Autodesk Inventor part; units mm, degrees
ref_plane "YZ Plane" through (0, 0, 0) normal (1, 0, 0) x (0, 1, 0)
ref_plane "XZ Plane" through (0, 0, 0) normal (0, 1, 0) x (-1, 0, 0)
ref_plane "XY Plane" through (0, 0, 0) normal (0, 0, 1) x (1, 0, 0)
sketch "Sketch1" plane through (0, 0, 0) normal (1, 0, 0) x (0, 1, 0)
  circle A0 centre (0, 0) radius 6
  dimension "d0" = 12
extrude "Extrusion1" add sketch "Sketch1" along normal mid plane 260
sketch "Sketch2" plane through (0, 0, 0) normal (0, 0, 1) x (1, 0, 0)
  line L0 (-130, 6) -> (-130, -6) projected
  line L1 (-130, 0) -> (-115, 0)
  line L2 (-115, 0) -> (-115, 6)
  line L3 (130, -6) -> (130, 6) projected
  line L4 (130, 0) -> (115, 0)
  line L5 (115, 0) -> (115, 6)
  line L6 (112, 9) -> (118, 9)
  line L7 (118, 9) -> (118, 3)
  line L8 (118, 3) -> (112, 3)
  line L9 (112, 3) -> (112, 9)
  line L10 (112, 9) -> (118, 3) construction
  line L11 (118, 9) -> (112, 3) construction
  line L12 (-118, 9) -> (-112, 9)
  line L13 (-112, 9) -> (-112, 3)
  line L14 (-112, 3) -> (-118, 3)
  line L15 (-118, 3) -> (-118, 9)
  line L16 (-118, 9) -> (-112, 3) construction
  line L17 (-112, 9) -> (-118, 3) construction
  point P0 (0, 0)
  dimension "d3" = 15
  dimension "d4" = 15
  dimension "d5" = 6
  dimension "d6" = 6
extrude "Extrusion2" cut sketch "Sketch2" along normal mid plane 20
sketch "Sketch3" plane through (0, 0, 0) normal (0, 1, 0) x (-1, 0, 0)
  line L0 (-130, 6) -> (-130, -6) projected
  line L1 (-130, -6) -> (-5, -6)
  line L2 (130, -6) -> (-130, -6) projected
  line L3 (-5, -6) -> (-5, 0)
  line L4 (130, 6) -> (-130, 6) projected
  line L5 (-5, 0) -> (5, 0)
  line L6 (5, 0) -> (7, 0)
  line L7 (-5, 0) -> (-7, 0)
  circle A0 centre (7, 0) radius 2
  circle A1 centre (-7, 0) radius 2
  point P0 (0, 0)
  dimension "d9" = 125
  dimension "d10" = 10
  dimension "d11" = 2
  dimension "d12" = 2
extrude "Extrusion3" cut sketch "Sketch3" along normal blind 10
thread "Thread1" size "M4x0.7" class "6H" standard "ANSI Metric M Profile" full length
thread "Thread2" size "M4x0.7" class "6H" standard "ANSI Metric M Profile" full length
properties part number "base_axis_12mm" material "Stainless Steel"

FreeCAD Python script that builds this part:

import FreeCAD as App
import Part
import Sketcher

doc = App.newDocument("Part")
params = doc.addObject("Spreadsheet::Sheet", "Params")
for row, (alias, value) in enumerate([
    ("sketch1_diameter", "12 mm"),
    ("pad1_length", "260 mm"),
    ("sketch2_width", "6 mm"),
    ("pocket1_length", "20 mm"),
    ("sketch3_diameter", "4 mm"),
    ("pocket2_length", "10 mm"),
], start=1):
    params.set(f"A{row}", alias)
    params.set(f"B{row}", "=" + value)
    params.setAlias(f"B{row}", alias)

body = doc.addObject("PartDesign::Body", "Body")

sketch1 = doc.addObject("Sketcher::SketchObject", "Sketch")
body.addObject(sketch1)
sketch1.AttachmentSupport = (doc.YZ_Plane, [""])
sketch1.MapMode = "FlatFace"
sketch1.addGeometry(Part.Circle(App.Vector(0, 0, 0), App.Vector(0, 0, 1), 6), False)
sketch1.addConstraint([
    Sketcher.Constraint("Coincident", 0, 3, -1, 1),
    Sketcher.Constraint("Diameter", 0, 12.0),
])
sketch1.setExpression("Constraints[1]", "Params.sketch1_diameter")
pad1 = doc.addObject("PartDesign::Pad", "Pad")
body.addObject(pad1)
pad1.Profile = sketch1
pad1.setExpression("Length", "Params.pad1_length")
pad1.Midplane = True

sketch2 = doc.addObject("Sketcher::SketchObject", "Sketch001")
body.addObject(sketch2)
sketch2.AttachmentSupport = (doc.XY_Plane, [""])
sketch2.MapMode = "FlatFace"
sketch2.addGeometry([
    Part.LineSegment(App.Vector(118, 9, 0), App.Vector(112, 9, 0)),
    Part.LineSegment(App.Vector(112, 9, 0), App.Vector(112, 3, 0)),
    Part.LineSegment(App.Vector(112, 3, 0), App.Vector(118, 3, 0)),
    Part.LineSegment(App.Vector(118, 3, 0), App.Vector(118, 9, 0)),
    Part.LineSegment(App.Vector(-112, 9, 0), App.Vector(-118, 9, 0)),
    Part.LineSegment(App.Vector(-118, 9, 0), App.Vector(-118, 3, 0)),
    Part.LineSegment(App.Vector(-118, 3, 0), App.Vector(-112, 3, 0)),
    Part.LineSegment(App.Vector(-112, 3, 0), App.Vector(-112, 9, 0)),
], False)
sketch2.addConstraint([
    Sketcher.Constraint("Coincident", 0, 2, 1, 1),
    Sketcher.Constraint("Coincident", 1, 2, 2, 1),
    Sketcher.Constraint("Coincident", 2, 2, 3, 1),
    Sketcher.Constraint("Coincident", 3, 2, 0, 1),
    Sketcher.Constraint("Coincident", 4, 2, 5, 1),
    Sketcher.Constraint("Coincident", 5, 2, 6, 1),
    Sketcher.Constraint("Coincident", 6, 2, 7, 1),
    Sketcher.Constraint("Coincident", 7, 2, 4, 1),
    Sketcher.Constraint("Horizontal", 0),
    Sketcher.Constraint("Vertical", 1),
    Sketcher.Constraint("Horizontal", 2),
    Sketcher.Constraint("Vertical", 3),
    Sketcher.Constraint("Horizontal", 4),
    Sketcher.Constraint("Vertical", 5),
    Sketcher.Constraint("Horizontal", 6),
    Sketcher.Constraint("Vertical", 7),
    Sketcher.Constraint("Symmetric", 3, 2, 4, 2, -2),
    Sketcher.Constraint("Symmetric", 1, 2, 6, 2, -2),
    Sketcher.Constraint("Equal", 6, 1),
    Sketcher.Constraint("DistanceX", 0, 2, 0, 1, 6.0),
    Sketcher.Constraint("DistanceX", -1, 1, 0, 2, 112.0),
    Sketcher.Constraint("DistanceY", -1, 1, 0, 2, 9.0),
])
sketch2.setExpression("Constraints[19]", "Params.sketch2_width")
pocket1 = doc.addObject("PartDesign::Pocket", "Pocket")
body.addObject(pocket1)
pocket1.Profile = sketch2
pocket1.setExpression("Length", "Params.pocket1_length")
pocket1.Midplane = True

sketch3 = doc.addObject("Sketcher::SketchObject", "Sketch002")
body.addObject(sketch3)
sketch3.AttachmentSupport = (doc.XZ_Plane, [""])
sketch3.MapMode = "FlatFace"
sketch3.addGeometry([
    Part.Circle(App.Vector(-7, 0, 0), App.Vector(0, 0, 1), 2),
    Part.Circle(App.Vector(7, 0, 0), App.Vector(0, 0, 1), 2),
], False)
sketch3.addConstraint([
    Sketcher.Constraint("Equal", 0, 1),
    Sketcher.Constraint("Symmetric", 0, 3, 1, 3, -1, 1),
    Sketcher.Constraint("PointOnObject", 0, 3, -1),
    Sketcher.Constraint("Diameter", 0, 4.0),
    Sketcher.Constraint("DistanceX", 0, 3, -1, 1, 7.0),
])
sketch3.setExpression("Constraints[3]", "Params.sketch3_diameter")
pocket2 = doc.addObject("PartDesign::Pocket", "Pocket001")
body.addObject(pocket2)
pocket2.Profile = sketch3
pocket2.setExpression("Length", "Params.pocket2_length")

doc.recompute()
